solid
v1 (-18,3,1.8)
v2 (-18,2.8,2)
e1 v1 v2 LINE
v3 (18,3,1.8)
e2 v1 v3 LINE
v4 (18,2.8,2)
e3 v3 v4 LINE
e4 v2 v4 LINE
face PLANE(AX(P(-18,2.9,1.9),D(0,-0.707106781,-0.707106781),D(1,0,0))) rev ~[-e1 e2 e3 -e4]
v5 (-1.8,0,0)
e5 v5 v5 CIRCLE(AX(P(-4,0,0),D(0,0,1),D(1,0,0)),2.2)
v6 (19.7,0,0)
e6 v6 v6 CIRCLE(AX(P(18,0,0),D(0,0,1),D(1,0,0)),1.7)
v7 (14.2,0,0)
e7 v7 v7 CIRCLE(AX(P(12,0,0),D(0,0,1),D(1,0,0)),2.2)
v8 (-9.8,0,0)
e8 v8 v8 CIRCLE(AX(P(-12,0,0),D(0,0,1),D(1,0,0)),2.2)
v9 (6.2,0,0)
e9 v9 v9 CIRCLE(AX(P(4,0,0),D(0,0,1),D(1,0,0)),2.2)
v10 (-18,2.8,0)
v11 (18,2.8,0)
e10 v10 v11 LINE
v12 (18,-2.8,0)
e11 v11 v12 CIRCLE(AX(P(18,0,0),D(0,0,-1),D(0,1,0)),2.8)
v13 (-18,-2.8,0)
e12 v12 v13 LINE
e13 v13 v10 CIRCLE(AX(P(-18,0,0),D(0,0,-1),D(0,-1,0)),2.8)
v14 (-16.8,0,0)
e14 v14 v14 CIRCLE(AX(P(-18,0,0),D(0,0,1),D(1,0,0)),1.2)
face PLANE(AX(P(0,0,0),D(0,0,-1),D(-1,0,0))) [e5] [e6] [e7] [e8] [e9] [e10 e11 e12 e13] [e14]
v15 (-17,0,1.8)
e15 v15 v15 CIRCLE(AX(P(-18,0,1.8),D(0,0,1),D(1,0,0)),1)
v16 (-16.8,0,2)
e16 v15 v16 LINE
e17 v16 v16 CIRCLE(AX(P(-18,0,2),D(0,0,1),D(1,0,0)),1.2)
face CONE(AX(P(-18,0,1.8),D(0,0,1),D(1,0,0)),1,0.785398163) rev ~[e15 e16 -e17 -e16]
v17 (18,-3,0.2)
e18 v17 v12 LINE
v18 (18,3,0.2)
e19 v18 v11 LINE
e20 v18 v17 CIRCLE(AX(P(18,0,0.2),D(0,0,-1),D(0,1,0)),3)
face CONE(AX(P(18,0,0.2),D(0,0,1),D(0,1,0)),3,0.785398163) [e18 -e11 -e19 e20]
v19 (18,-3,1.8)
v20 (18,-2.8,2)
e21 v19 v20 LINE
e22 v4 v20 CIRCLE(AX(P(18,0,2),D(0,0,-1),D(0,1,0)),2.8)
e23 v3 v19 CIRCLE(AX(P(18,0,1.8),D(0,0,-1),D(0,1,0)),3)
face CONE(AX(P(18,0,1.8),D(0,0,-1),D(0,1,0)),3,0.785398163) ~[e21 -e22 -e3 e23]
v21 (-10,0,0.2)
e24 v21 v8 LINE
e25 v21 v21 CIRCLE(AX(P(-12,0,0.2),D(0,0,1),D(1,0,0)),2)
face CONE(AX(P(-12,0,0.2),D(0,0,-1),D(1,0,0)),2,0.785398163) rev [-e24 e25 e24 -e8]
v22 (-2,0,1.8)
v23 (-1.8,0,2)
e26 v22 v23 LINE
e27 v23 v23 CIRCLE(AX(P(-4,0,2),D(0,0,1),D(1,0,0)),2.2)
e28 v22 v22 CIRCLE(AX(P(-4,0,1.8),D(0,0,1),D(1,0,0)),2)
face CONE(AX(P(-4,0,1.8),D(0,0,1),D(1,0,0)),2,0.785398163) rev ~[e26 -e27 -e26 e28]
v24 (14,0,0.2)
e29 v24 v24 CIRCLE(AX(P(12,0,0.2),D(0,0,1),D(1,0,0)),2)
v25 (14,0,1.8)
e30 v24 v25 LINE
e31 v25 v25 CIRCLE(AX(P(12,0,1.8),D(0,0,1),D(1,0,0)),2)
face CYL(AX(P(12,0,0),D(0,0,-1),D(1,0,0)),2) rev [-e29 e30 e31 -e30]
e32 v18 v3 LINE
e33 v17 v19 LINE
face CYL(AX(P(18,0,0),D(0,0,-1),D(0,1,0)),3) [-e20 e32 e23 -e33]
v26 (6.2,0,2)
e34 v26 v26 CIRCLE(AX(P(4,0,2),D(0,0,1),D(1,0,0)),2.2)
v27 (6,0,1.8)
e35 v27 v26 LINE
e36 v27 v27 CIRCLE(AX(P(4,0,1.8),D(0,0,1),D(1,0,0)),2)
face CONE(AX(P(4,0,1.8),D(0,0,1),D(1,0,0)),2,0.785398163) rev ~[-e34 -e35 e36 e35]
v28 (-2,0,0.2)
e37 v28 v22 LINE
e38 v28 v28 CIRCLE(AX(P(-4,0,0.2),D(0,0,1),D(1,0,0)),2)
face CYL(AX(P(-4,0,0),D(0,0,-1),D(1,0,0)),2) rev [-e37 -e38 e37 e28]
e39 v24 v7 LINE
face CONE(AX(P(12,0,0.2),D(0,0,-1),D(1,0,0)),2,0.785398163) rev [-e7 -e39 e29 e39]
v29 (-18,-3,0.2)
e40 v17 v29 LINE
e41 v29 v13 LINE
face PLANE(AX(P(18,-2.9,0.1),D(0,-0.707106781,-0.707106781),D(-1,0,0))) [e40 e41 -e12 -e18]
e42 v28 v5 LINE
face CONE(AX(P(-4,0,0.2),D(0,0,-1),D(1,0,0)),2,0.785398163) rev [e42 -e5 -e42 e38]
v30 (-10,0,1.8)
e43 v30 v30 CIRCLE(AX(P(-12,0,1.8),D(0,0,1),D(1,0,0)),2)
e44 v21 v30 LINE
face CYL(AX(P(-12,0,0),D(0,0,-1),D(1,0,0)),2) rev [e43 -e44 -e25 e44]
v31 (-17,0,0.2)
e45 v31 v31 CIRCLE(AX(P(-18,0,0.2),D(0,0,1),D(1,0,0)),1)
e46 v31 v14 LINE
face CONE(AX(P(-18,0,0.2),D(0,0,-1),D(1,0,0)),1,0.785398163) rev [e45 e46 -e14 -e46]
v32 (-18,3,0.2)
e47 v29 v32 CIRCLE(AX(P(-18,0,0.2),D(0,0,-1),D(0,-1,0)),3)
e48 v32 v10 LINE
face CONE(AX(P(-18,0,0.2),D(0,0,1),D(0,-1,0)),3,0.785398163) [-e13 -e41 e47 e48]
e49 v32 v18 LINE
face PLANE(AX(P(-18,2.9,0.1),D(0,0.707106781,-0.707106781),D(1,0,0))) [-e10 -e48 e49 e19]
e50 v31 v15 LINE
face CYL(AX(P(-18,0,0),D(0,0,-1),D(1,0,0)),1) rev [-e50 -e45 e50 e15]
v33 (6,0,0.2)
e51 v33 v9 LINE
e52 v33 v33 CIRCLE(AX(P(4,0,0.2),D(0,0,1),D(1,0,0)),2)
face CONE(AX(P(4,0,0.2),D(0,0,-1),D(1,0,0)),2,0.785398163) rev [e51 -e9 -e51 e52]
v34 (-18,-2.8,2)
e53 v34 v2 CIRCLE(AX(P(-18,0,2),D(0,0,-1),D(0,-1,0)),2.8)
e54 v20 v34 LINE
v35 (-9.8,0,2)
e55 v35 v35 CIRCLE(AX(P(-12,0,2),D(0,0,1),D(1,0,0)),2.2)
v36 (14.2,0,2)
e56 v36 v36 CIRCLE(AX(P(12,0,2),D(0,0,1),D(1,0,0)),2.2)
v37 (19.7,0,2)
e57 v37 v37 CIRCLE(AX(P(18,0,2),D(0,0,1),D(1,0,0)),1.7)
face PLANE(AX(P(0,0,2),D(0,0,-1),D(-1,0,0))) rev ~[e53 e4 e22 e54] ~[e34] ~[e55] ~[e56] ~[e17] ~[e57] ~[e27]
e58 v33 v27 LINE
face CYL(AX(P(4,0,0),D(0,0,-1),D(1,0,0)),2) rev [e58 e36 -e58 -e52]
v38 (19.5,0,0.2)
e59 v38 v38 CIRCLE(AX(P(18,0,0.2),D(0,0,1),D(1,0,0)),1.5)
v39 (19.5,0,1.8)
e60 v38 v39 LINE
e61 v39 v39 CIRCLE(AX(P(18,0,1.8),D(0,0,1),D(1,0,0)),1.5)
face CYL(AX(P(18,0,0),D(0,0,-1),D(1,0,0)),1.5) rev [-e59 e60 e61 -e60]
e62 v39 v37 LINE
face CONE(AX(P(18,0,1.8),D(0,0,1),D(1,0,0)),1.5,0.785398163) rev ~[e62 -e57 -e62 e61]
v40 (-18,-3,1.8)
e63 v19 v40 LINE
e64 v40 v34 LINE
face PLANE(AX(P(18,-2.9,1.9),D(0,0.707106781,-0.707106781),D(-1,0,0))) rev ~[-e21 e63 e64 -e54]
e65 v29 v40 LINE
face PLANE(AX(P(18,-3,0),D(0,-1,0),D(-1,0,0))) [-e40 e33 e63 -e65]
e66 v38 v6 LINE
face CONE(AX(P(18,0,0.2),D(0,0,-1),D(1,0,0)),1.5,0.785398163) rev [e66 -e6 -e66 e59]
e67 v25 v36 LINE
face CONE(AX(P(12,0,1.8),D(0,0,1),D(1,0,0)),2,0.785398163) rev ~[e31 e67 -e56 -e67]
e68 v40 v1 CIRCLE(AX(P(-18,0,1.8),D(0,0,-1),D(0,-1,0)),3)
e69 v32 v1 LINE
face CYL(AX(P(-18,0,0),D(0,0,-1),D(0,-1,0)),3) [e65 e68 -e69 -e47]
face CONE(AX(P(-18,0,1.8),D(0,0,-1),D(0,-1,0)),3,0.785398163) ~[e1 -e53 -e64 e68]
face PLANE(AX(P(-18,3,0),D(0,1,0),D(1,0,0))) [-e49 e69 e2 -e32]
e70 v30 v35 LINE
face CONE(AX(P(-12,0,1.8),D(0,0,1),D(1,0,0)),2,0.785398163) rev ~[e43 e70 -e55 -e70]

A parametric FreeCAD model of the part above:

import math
import FreeCAD as App
import Part
import Sketcher

V = App.Vector


def edges_at(feature, points):
    """Names of the edges that pass closest to the given points."""
    edges = feature.Shape.Edges
    near = lambda p: min(range(len(edges)), key=lambda i: edges[i].distToShape(Part.Vertex(*p))[0])
    return sorted({f"Edge{near(p) + 1}" for p in points})

doc = App.newDocument("Part")
body = doc.addObject("PartDesign::Body", "Body")

# Sketch on XY plane
sketch1 = body.newObject("Sketcher::SketchObject", "Sketch")
sketch1.AttachmentSupport = (doc.getObject("XY_Plane"), [""])
sketch1.MapMode = "FlatFace"
sketch1.addGeometry([
    Part.LineSegment(V(18, 3, 0), V(-18, 3, 0)),  # 0
    Part.ArcOfCircle(Part.Circle(V(-18, 0, 0), V(0, 0, 1), 3), math.radians(90), math.radians(270)),  # 1
    Part.LineSegment(V(-18, -3, 0), V(18, -3, 0)),  # 2
    Part.ArcOfCircle(Part.Circle(V(18, 0, 0), V(0, 0, 1), 3), math.radians(-90), math.radians(90)),  # 3
    Part.Circle(V(18, 0, 0), V(0, 0, 1), 1.5),  # 4
    Part.Circle(V(12, 0, 0), V(0, 0, 1), 2),  # 5
    Part.Circle(V(4, 0, 0), V(0, 0, 1), 2),  # 6
    Part.Circle(V(-4, 0, 0), V(0, 0, 1), 2),  # 7
    Part.Circle(V(-12, 0, 0), V(0, 0, 1), 2),  # 8
    Part.Circle(V(-18, 0, 0), V(0, 0, 1), 1),  # 9
], False)
sketch1.addConstraint([
    Sketcher.Constraint("Tangent", 0, 2, 1, 1),
    Sketcher.Constraint("Tangent", 1, 2, 2, 1),
    Sketcher.Constraint("Tangent", 2, 2, 3, 1),
    Sketcher.Constraint("Tangent", 3, 2, 0, 1),
    Sketcher.Constraint("Horizontal", 0),
    Sketcher.Constraint("Horizontal", 2),
    Sketcher.Constraint("Coincident", 4, 3, 3, 3),
    Sketcher.Constraint("Coincident", 9, 3, 1, 3),
    Sketcher.Constraint("Equal", 5, 6),
    Sketcher.Constraint("Equal", 6, 7),
    Sketcher.Constraint("Equal", 7, 8),
    Sketcher.Constraint("Symmetric", 1, 3, 3, 3, -1, 1),
    Sketcher.Constraint("Symmetric", 6, 3, 7, 3, -1, 1),
    Sketcher.Constraint("Symmetric", 5, 3, 8, 3, -1, 1),
    Sketcher.Constraint("PointOnObject", 5, 3, -1),
    Sketcher.Constraint("PointOnObject", 6, 3, -1),
    Sketcher.Constraint("Diameter", 4, 3.0),
    Sketcher.Constraint("Diameter", 5, 4.0),
    Sketcher.Constraint("Diameter", 9, 2.0),
    Sketcher.Constraint("Radius", 1, 3.0),
    Sketcher.Constraint("DistanceX", 0, 2, 0, 1, 36.0),
    Sketcher.Constraint("DistanceX", -1, 1, 5, 3, 12.0),
    Sketcher.Constraint("DistanceX", -1, 1, 6, 3, 4.0),
])
pad1 = body.newObject("PartDesign::Pad", "Pad")
pad1.Profile = sketch1
pad1.Length = 2
doc.recompute()

chamfer = body.newObject("PartDesign::Chamfer", "Chamfer")
chamfer.Base = (pad1, edges_at(pad1, [
    (-19, 0, 0),
    (-19, 0, 2),
    (21, 0, 2),
    (-14, 0, 0),
    (-14, 0, 2),
    (0, 3, 2),
    (-6, 0, 0),
    (-6, 0, 2),
    (16.5, 0, 0),
    (16.5, 0, 2),
    (10, 0, 0),
    (10, 0, 2),
    (2, 0, 0),
    (2, 0, 2),
    (-21, 0, 2),
    (0, 3, 0),
    (21, 0, 0),
    (0, -3, 0),
    (-21, 0, 0),
    (0, -3, 2),
]))
chamfer.Size = 0.2

doc.recompute()
